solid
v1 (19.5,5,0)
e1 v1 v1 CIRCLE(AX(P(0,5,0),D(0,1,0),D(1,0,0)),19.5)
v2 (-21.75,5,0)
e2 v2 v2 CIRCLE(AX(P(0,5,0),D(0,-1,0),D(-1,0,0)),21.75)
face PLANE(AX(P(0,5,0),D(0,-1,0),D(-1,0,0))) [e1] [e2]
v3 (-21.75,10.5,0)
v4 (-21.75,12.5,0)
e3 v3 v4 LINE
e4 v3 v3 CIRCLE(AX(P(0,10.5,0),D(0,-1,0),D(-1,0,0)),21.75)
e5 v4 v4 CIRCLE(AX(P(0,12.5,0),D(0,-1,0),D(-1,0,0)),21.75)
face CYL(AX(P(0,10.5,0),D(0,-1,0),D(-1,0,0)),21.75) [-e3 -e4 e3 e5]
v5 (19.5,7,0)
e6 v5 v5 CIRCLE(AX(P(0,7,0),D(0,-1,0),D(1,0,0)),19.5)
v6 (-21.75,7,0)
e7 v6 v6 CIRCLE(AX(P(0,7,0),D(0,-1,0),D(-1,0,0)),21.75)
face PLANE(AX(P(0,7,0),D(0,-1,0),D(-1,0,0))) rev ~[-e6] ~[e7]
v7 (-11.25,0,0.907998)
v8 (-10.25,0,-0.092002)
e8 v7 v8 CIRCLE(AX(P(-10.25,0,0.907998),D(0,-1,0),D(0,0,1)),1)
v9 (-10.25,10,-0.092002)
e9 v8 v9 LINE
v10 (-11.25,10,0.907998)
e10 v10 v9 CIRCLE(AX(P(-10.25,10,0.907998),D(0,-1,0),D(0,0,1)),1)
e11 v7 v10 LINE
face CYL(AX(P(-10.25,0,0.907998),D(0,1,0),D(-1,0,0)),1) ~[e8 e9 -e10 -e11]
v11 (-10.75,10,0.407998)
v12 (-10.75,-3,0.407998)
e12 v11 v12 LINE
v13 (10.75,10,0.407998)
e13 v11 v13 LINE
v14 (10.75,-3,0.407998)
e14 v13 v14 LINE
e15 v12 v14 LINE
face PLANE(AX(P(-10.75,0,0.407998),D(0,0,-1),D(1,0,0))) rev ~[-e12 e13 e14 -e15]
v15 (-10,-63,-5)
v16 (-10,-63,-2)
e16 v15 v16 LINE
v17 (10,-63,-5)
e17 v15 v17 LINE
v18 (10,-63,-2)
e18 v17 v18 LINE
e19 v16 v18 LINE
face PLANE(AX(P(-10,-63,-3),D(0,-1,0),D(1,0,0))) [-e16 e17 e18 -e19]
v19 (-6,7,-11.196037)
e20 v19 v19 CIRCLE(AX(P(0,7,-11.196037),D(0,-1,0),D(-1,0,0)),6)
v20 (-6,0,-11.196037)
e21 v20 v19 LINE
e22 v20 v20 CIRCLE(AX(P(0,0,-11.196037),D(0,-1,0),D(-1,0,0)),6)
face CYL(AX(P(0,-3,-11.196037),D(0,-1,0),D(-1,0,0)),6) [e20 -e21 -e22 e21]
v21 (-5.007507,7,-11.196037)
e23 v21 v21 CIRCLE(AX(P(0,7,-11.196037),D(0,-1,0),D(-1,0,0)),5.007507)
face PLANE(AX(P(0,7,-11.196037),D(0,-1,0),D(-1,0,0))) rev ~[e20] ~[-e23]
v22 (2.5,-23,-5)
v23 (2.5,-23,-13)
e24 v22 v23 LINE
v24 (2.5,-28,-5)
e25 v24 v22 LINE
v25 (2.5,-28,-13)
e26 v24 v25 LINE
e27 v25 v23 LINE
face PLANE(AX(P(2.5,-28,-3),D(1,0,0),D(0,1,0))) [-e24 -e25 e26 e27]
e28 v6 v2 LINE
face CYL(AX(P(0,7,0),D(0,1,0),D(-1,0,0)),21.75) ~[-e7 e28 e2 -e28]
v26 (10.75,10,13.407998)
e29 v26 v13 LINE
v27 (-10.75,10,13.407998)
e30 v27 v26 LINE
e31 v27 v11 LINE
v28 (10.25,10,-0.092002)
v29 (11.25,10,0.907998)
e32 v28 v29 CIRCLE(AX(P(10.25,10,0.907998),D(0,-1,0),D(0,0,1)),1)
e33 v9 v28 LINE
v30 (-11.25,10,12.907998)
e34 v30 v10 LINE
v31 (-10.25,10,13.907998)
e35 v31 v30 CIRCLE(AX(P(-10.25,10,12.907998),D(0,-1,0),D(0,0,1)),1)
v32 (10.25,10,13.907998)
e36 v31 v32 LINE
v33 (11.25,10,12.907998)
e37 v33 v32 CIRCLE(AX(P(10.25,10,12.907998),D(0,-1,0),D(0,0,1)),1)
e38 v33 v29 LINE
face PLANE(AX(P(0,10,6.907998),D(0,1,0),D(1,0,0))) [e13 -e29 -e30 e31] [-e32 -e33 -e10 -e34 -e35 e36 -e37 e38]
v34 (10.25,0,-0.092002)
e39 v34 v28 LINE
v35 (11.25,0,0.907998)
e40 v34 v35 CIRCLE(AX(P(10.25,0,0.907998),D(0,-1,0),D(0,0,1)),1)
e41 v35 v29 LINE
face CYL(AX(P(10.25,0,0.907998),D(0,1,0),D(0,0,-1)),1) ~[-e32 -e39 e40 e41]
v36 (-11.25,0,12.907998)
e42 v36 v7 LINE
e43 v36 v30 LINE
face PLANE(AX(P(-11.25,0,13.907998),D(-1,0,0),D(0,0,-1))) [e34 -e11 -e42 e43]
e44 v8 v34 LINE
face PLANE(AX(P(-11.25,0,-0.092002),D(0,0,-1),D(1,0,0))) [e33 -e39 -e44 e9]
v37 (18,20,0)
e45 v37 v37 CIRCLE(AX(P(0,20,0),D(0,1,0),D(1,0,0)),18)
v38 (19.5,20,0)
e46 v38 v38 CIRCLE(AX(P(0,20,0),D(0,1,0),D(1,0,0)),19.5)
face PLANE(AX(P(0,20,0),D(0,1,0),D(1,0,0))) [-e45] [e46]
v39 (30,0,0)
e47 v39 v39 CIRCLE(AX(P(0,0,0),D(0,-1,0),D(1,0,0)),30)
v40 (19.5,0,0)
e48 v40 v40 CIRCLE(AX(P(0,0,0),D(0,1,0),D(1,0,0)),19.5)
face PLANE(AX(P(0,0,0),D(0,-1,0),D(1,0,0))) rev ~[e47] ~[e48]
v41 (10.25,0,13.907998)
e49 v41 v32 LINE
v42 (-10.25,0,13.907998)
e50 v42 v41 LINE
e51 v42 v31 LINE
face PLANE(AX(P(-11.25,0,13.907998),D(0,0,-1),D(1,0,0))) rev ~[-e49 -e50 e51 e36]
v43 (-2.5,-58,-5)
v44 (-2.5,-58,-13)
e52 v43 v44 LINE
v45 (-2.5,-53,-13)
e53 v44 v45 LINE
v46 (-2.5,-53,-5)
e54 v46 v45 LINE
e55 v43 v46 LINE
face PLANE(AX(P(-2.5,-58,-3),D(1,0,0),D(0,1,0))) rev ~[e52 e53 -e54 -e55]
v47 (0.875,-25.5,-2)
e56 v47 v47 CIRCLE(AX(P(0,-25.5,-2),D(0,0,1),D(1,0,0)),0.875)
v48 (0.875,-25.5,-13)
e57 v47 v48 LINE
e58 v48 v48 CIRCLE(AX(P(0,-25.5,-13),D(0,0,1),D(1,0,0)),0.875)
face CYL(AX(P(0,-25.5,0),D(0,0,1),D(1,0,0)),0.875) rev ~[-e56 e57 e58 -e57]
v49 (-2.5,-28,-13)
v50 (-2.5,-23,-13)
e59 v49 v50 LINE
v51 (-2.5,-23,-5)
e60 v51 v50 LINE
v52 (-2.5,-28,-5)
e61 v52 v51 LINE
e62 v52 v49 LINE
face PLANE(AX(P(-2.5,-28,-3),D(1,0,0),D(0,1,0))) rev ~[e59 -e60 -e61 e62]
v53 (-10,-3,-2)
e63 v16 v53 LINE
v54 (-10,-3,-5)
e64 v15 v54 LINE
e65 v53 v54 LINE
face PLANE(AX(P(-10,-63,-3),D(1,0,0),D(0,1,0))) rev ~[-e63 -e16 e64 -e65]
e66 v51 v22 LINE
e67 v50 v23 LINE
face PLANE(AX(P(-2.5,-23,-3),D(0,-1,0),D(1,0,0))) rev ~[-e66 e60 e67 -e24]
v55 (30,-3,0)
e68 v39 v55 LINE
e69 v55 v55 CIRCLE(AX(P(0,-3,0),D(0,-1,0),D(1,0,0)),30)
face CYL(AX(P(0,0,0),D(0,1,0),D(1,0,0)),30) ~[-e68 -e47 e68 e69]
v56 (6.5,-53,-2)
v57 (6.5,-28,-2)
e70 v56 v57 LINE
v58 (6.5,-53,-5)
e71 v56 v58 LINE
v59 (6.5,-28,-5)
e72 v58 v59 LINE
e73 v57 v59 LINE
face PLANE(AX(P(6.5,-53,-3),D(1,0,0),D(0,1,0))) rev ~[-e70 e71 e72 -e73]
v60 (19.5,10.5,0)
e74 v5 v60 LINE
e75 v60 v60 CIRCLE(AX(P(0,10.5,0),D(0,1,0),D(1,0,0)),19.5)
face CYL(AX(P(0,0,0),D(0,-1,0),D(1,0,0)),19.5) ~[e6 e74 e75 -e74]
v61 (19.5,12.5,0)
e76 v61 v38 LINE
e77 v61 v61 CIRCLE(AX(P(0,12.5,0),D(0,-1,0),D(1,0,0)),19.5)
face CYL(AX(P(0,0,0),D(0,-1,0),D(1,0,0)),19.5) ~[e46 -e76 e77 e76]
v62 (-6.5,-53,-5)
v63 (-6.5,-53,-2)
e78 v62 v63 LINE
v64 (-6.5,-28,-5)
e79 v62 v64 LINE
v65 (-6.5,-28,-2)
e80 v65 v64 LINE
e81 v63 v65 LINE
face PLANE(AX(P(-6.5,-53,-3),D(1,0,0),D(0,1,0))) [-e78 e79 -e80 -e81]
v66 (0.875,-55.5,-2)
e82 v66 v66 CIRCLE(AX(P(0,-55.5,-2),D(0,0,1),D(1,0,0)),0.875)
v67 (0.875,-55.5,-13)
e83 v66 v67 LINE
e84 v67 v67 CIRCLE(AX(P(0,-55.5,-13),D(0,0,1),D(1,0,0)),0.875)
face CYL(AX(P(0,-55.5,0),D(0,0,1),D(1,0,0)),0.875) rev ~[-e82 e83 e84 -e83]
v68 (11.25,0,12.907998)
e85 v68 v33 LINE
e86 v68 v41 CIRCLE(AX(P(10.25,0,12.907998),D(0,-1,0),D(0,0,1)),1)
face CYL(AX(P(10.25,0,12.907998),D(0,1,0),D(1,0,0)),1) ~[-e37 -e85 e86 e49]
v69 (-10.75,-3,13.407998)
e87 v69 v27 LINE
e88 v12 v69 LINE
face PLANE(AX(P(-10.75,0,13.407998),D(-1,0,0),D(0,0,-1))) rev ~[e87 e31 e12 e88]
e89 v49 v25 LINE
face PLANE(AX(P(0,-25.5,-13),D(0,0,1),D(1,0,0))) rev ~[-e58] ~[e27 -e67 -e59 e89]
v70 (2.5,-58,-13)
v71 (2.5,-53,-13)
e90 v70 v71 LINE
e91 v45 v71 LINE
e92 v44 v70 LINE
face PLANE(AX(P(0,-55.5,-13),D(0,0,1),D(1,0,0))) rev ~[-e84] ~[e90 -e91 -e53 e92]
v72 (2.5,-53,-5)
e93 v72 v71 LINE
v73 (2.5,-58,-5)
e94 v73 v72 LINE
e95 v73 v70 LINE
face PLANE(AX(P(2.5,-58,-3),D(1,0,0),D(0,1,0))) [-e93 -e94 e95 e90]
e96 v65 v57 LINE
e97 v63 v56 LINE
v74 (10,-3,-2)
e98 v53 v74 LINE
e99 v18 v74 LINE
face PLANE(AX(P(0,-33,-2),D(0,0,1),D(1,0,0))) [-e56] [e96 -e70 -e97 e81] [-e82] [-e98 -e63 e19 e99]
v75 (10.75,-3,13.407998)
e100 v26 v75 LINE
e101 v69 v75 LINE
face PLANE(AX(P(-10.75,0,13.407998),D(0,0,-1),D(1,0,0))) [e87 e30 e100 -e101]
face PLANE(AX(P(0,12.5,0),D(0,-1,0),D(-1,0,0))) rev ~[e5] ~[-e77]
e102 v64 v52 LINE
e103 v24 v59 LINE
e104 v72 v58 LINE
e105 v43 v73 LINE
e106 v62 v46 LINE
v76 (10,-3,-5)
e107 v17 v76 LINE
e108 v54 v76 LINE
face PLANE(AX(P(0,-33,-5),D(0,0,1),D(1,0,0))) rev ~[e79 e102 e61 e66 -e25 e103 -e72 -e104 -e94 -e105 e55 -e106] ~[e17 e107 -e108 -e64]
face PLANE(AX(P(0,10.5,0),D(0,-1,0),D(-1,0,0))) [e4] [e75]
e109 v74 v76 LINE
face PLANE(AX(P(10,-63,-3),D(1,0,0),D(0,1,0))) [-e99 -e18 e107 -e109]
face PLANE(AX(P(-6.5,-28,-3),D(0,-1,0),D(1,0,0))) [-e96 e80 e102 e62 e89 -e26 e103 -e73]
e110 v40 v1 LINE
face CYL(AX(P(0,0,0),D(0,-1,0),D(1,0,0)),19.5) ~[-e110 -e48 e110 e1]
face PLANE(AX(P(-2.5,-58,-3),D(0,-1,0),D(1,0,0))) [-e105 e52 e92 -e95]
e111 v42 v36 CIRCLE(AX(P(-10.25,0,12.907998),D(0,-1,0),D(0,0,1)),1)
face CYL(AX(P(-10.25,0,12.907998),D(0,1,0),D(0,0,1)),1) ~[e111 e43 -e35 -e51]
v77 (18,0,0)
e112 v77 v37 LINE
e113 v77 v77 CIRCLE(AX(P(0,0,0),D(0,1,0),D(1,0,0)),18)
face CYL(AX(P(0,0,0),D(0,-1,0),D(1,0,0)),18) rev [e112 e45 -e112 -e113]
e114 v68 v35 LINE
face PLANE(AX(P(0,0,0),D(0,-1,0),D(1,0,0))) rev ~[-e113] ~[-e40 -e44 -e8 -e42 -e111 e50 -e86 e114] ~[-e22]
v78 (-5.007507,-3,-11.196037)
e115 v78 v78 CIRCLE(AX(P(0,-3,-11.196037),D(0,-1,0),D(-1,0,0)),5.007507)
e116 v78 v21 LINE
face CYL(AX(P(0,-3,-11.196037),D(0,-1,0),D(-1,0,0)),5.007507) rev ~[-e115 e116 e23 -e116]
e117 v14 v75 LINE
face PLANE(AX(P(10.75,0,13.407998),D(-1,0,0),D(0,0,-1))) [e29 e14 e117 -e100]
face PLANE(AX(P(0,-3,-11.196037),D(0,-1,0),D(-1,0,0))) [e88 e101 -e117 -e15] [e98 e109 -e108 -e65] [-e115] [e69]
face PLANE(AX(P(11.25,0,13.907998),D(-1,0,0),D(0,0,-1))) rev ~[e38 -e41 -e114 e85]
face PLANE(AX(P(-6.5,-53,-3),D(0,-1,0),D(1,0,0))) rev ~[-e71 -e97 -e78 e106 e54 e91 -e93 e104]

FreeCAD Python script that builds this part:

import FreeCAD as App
import Part
import Sketcher

V = App.Vector


def edges_at(feature, points):
    """Names of the edges that pass closest to the given points."""
    edges = feature.Shape.Edges
    near = lambda p: min(range(len(edges)), key=lambda i: edges[i].distToShape(Part.Vertex(*p))[0])
    return sorted({f"Edge{near(p) + 1}" for p in points})


def add_polygon(sketch, points):
    """Adds a closed chain of lines whose ends are joined by coincident constraints."""
    first, n = sketch.GeometryCount, len(points)
    for a, b in zip(points, points[1:] + points[:1]):
        sketch.addGeometry(Part.LineSegment(App.Vector(*a, 0), App.Vector(*b, 0)), False)
    for i in range(n):
        sketch.addConstraint(Sketcher.Constraint("Coincident", first + i, 2, first + (i + 1) % n, 1))

doc = App.newDocument("Part")
body = doc.addObject("PartDesign::Body", "Body")

sketch1 = body.newObject("Sketcher::SketchObject", "Sketch")
sketch1.AttachmentSupport = (doc.getObject("XZ_Plane"), [""])
sketch1.MapMode = "FlatFace"
sketch1.addGeometry(Part.Circle(V(0, 0, 0), V(0, 0, 1), 19.5), False)
sketch1.addGeometry(Part.Circle(V(0, 0, 0), V(0, 0, 1), 18), False)
sketch1.addConstraint(Sketcher.Constraint("Coincident", 0, 3, -1, 1))
sketch1.addConstraint(Sketcher.Constraint("Coincident", 1, 3, -1, 1))
sketch1.addConstraint(Sketcher.Constraint("Diameter", 0, 39.0))
sketch1.addConstraint(Sketcher.Constraint("Diameter", 1, 36.0))
pad1 = body.newObject("PartDesign::Pad", "Pad")
pad1.Profile = sketch1
pad1.Length = 20
pad1.Reversed = True

sketch2 = body.newObject("Sketcher::SketchObject", "Sketch001")
sketch2.AttachmentSupport = (doc.getObject("XZ_Plane"), [""])
sketch2.MapMode = "FlatFace"
sketch2.addGeometry(Part.Circle(V(0, 0, 0), V(0, 0, 1), 30), False)
sketch2.addConstraint(Sketcher.Constraint("Coincident", 0, 3, -1, 1))
sketch2.addConstraint(Sketcher.Constraint("Diameter", 0, 60.0))
pad2 = body.newObject("PartDesign::Pad", "Pad001")
pad2.Profile = sketch2
pad2.Length = 3

sketch3 = body.newObject("Sketcher::SketchObject", "Sketch002")
sketch3.AttachmentSupport = (doc.getObject("XZ_Plane"), [""])
sketch3.MapMode = "FlatFace"
sketch3.AttachmentOffset = App.Placement(V(0, 0, 3), App.Rotation())
sketch3.addGeometry(Part.Circle(V(0, -11.196037, 0), V(0, 0, 1), 6), False)
sketch3.addGeometry(Part.Circle(V(0, -11.196037, 0), V(0, 0, 1), 5), False)
sketch3.addConstraint(Sketcher.Constraint("Coincident", 1, 3, 0, 3))
sketch3.addConstraint(Sketcher.Constraint("PointOnObject", 0, 3, -2))
sketch3.addConstraint(Sketcher.Constraint("Diameter", 0, 12.0))
sketch3.addConstraint(Sketcher.Constraint("Diameter", 1, 10.0))
sketch3.addConstraint(Sketcher.Constraint("DistanceY", 0, 3, -1, 1, 11.196037))
pad3 = body.newObject("PartDesign::Pad", "Pad002")
pad3.Profile = sketch3
pad3.Length = 10
pad3.Reversed = True

sketch4 = body.newObject("Sketcher::SketchObject", "Sketch003")
sketch4.AttachmentSupport = (doc.getObject("XZ_Plane"), [""])
sketch4.MapMode = "FlatFace"
sketch4.AttachmentOffset = App.Placement(V(0, 0, 3), App.Rotation())
sketch4.addGeometry(Part.Circle(V(0, -11.196037, 0), V(0, 0, 1), 5.007507), False)
sketch4.addConstraint(Sketcher.Constraint("PointOnObject", 0, 3, -2))
sketch4.addConstraint(Sketcher.Constraint("Diameter", 0, 10.015013))
sketch4.addConstraint(Sketcher.Constraint("DistanceY", 0, 3, -1, 1, 11.196037))
pocket1 = body.newObject("PartDesign::Pocket", "Pocket")
pocket1.Profile = sketch4
pocket1.Type = "ThroughAll"
pocket1.Midplane = True

sketch5 = body.newObject("Sketcher::SketchObject", "Sketch004")
sketch5.AttachmentSupport = (doc.getObject("XY_Plane"), [""])
sketch5.MapMode = "FlatFace"
sketch5.AttachmentOffset = App.Placement(V(0, 0, -3), App.Rotation())
add_polygon(sketch5, [(-10, -3), (-10, -63), (10, -63), (10, -3)])
add_polygon(sketch5, [(6.5, -53), (-6.5, -53), (-6.5, -28), (6.5, -28)])
sketch5.addConstraint(Sketcher.Constraint("Vertical", 0))
sketch5.addConstraint(Sketcher.Constraint("Horizontal", 1))
sketch5.addConstraint(Sketcher.Constraint("Vertical", 2))
sketch5.addConstraint(Sketcher.Constraint("Horizontal", 3))
sketch5.addConstraint(Sketcher.Constraint("Horizontal", 4))
sketch5.addConstraint(Sketcher.Constraint("Vertical", 5))
sketch5.addConstraint(Sketcher.Constraint("Horizontal", 6))
sketch5.addConstraint(Sketcher.Constraint("Vertical", 7))
sketch5.addConstraint(Sketcher.Constraint("DistanceX", 1, 1, 1, 2, 20.0))
sketch5.addConstraint(Sketcher.Constraint("DistanceX", 4, 2, 4, 1, 13.0))
sketch5.addConstraint(Sketcher.Constraint("DistanceY", 0, 2, 0, 1, 60.0))
sketch5.addConstraint(Sketcher.Constraint("DistanceY", 5, 1, 5, 2, 25.0))
sketch5.addConstraint(Sketcher.Constraint("DistanceX", 0, 2, -1, 1, 10.0))
sketch5.addConstraint(Sketcher.Constraint("DistanceY", 0, 2, -1, 1, 63.0))
sketch5.addConstraint(Sketcher.Constraint("DistanceY", 4, 2, -1, 1, 53.0))
sketch5.addConstraint(Sketcher.Constraint("DistanceX", 4, 2, -1, 1, 6.5))
pad4 = body.newObject("PartDesign::Pad", "Pad003")
pad4.Profile = sketch5
pad4.Type = "TwoLengths"
pad4.Length = 1
pad4.Length2 = 2

sketch6 = body.newObject("Sketcher::SketchObject", "Sketch005")
sketch6.AttachmentSupport = (doc.getObject("XY_Plane"), [""])
sketch6.MapMode = "FlatFace"
sketch6.AttachmentOffset = App.Placement(V(0, 0, -3), App.Rotation())
add_polygon(sketch6, [(-2.5, -23), (-2.5, -28), (2.5, -28), (2.5, -23)])
add_polygon(sketch6, [(-2.5, -53), (-2.5, -58), (2.5, -58), (2.5, -53)])
sketch6.addConstraint(Sketcher.Constraint("Vertical", 0))
sketch6.addConstraint(Sketcher.Constraint("Horizontal", 1))
sketch6.addConstraint(Sketcher.Constraint("Vertical", 2))
sketch6.addConstraint(Sketcher.Constraint("Horizontal", 3))
sketch6.addConstraint(Sketcher.Constraint("Vertical", 4))
sketch6.addConstraint(Sketcher.Constraint("Horizontal", 5))
sketch6.addConstraint(Sketcher.Constraint("Vertical", 6))
sketch6.addConstraint(Sketcher.Constraint("Horizontal", 7))
sketch6.addConstraint(Sketcher.Constraint("Vertical", 3, 2, 4, 2))
sketch6.addConstraint(Sketcher.Constraint("Vertical", 2, 2, 5, 2))
sketch6.addConstraint(Sketcher.Constraint("Equal", 7, 0))
sketch6.addConstraint(Sketcher.Constraint("Equal", 2, 4))
sketch6.addConstraint(Sketcher.Constraint("DistanceX", 1, 1, 1, 2, 5.0))
sketch6.addConstraint(Sketcher.Constraint("DistanceY", 0, 2, -1, 1, 28.0))
sketch6.addConstraint(Sketcher.Constraint("DistanceY", 4, 2, -1, 1, 58.0))
sketch6.addConstraint(Sketcher.Constraint("DistanceX", 0, 2, -1, 1, 2.5))
pad5 = body.newObject("PartDesign::Pad", "Pad004")
pad5.Profile = sketch6
pad5.Length = 10
pad5.Reversed = True

sketch7 = body.newObject("Sketcher::SketchObject", "Sketch006")
sketch7.AttachmentSupport = (doc.getObject("XY_Plane"), [""])
sketch7.MapMode = "FlatFace"
sketch7.addGeometry(Part.Circle(V(0, -55.5, 0), V(0, 0, 1), 0.875), False)
sketch7.addGeometry(Part.Circle(V(0, -25.5, 0), V(0, 0, 1), 0.875), False)
sketch7.addConstraint(Sketcher.Constraint("Equal", 0, 1))
sketch7.addConstraint(Sketcher.Constraint("PointOnObject", 0, 3, -2))
sketch7.addConstraint(Sketcher.Constraint("PointOnObject", 1, 3, -2))
sketch7.addConstraint(Sketcher.Constraint("Diameter", 0, 1.75))
sketch7.addConstraint(Sketcher.Constraint("DistanceY", 0, 3, 1, 3, 30.0))
sketch7.addConstraint(Sketcher.Constraint("DistanceY", 0, 3, -1, 1, 55.5))
pocket2 = body.newObject("PartDesign::Pocket", "Pocket001")
pocket2.Profile = sketch7
pocket2.Type = "ThroughAll"
pocket2.Midplane = True

sketch8 = body.newObject("Sketcher::SketchObject", "Sketch007")
sketch8.AttachmentSupport = (doc.getObject("XZ_Plane"), [""])
sketch8.MapMode = "FlatFace"
sketch8.AttachmentOffset = App.Placement(V(0, 0, 3), App.Rotation())
add_polygon(sketch8, [(-10.75, 13.407998), (-10.75, 0.407998), (10.75, 0.407998), (10.75, 13.407998)])
sketch8.addConstraint(Sketcher.Constraint("Vertical", 0))
sketch8.addConstraint(Sketcher.Constraint("Horizontal", 1))
sketch8.addConstraint(Sketcher.Constraint("Vertical", 2))
sketch8.addConstraint(Sketcher.Constraint("Horizontal", 3))
sketch8.addConstraint(Sketcher.Constraint("DistanceY", 0, 2, 0, 1, 13.0))
sketch8.addConstraint(Sketcher.Constraint("DistanceX", 1, 1, 1, 2, 21.5))
sketch8.addConstraint(Sketcher.Constraint("DistanceX", 0, 2, -1, 1, 10.75))
sketch8.addConstraint(Sketcher.Constraint("DistanceY", -1, 1, 0, 2, 0.407998))
pocket3 = body.newObject("PartDesign::Pocket", "Pocket002")
pocket3.Profile = sketch8
pocket3.Length = 21.5

sketch9 = body.newObject("Sketcher::SketchObject", "Sketch008")
sketch9.AttachmentSupport = (doc.getObject("XZ_Plane"), [""])
sketch9.MapMode = "FlatFace"
add_polygon(sketch9, [(-11.25, -0.092002), (-11.25, 13.907998), (11.25, 13.907998), (11.25, -0.092002)])
add_polygon(sketch9, [(10.75, 13.407998), (-10.75, 13.407998), (-10.75, 0.407998), (10.75, 0.407998)])
sketch9.addConstraint(Sketcher.Constraint("Vertical", 0))
sketch9.addConstraint(Sketcher.Constraint("Horizontal", 1))
sketch9.addConstraint(Sketcher.Constraint("Vertical", 2))
sketch9.addConstraint(Sketcher.Constraint("Horizontal", 3))
sketch9.addConstraint(Sketcher.Constraint("Horizontal", 4))
sketch9.addConstraint(Sketcher.Constraint("Vertical", 5))
sketch9.addConstraint(Sketcher.Constraint("Horizontal", 6))
sketch9.addConstraint(Sketcher.Constraint("Vertical", 7))
sketch9.addConstraint(Sketcher.Constraint("DistanceY", 0, 1, 0, 2, 14.0))
sketch9.addConstraint(Sketcher.Constraint("DistanceY", 5, 2, 5, 1, 13.0))
sketch9.addConstraint(Sketcher.Constraint("DistanceX", 1, 1, 1, 2, 22.5))
sketch9.addConstraint(Sketcher.Constraint("DistanceX", 4, 2, 4, 1, 21.5))
sketch9.addConstraint(Sketcher.Constraint("DistanceX", 4, 2, 1, 2, 22.0))
sketch9.addConstraint(Sketcher.Constraint("DistanceY", 4, 2, 0, 2, 0.5))
sketch9.addConstraint(Sketcher.Constraint("DistanceX", 0, 2, -1, 1, 11.25))
sketch9.addConstraint(Sketcher.Constraint("DistanceY", -1, 1, 0, 2, 13.907998))
pad6 = body.newObject("PartDesign::Pad", "Pad005")
pad6.Profile = sketch9
pad6.Length = 10
pad6.Reversed = True
doc.recompute()

fillet = body.newObject("PartDesign::Fillet", "Fillet")
fillet.Base = (pad6, edges_at(pad6, [(-11.25, 5, -0.092)]))
fillet.Radius = 1
doc.recompute()

fillet2 = body.newObject("PartDesign::Fillet", "Fillet001")
fillet2.Base = (fillet, edges_at(fillet, [(11.25, 5, -0.092)]))
fillet2.Radius = 1
doc.recompute()

fillet3 = body.newObject("PartDesign::Fillet", "Fillet002")
fillet3.Base = (fillet2, edges_at(fillet2, [(11.25, 5, 13.908)]))
fillet3.Radius = 1
doc.recompute()

fillet4 = body.newObject("PartDesign::Fillet", "Fillet003")
fillet4.Base = (fillet3, edges_at(fillet3, [(-11.25, 5, 13.908)]))
fillet4.Radius = 1

sketch10 = body.newObject("Sketcher::SketchObject", "Sketch009")
sketch10.AttachmentSupport = (doc.getObject("XZ_Plane"), [""])
sketch10.MapMode = "FlatFace"
sketch10.AttachmentOffset = App.Placement(V(0, 0, -7), App.Rotation())
sketch10.addGeometry(Part.Circle(V(0, 0, 0), V(0, 0, 1), 21.75), False)
sketch10.addGeometry(Part.Circle(V(0, 0, 0), V(0, 0, 1), 19.5), False)
sketch10.addConstraint(Sketcher.Constraint("Coincident", 0, 3, -1, 1))
sketch10.addConstraint(Sketcher.Constraint("Coincident", 1, 3, -1, 1))
sketch10.addConstraint(Sketcher.Constraint("Diameter", 1, 39.0))
sketch10.addConstraint(Sketcher.Constraint("Diameter", 0, 43.5))
pad7 = body.newObject("PartDesign::Pad", "Pad006")
pad7.Profile = sketch10
pad7.Length = 2

sketch11 = body.newObject("Sketcher::SketchObject", "Sketch010")
sketch11.AttachmentSupport = (doc.getObject("XZ_Plane"), [""])
sketch11.MapMode = "FlatFace"
sketch11.AttachmentOffset = App.Placement(V(0, 0, -10.5), App.Rotation())
sketch11.addGeometry(Part.Circle(V(0, 0, 0), V(0, 0, 1), 21.75), False)
sketch11.addGeometry(Part.Circle(V(0, 0, 0), V(0, 0, 1), 19.5), False)
sketch11.addConstraint(Sketcher.Constraint("Coincident", 0, 3, -1, 1))
sketch11.addConstraint(Sketcher.Constraint("Coincident", 1, 3, -1, 1))
sketch11.addConstraint(Sketcher.Constraint("Diameter", 1, 39.0))
sketch11.addConstraint(Sketcher.Constraint("Diameter", 0, 43.5))
pad8 = body.newObject("PartDesign::Pad", "Pad007")
pad8.Profile = sketch11
pad8.Length = 2
pad8.Reversed = True

doc.recompute()
